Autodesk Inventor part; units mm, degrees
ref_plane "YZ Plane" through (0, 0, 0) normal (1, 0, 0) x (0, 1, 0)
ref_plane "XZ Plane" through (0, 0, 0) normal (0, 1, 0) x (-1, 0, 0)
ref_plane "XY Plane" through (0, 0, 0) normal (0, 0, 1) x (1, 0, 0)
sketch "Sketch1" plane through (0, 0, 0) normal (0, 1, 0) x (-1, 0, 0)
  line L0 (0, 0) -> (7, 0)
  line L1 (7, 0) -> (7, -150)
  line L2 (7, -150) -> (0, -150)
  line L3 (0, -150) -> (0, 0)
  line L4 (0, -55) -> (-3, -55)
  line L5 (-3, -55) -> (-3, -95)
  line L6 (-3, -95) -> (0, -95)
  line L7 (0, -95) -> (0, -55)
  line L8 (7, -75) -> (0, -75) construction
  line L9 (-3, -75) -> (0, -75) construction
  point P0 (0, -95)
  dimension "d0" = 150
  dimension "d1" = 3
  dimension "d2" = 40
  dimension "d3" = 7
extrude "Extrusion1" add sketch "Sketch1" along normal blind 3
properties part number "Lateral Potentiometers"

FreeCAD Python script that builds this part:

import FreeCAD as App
import Part
import Sketcher
from FreeCAD import Vector
Q = App.Units.Quantity


def add_polygon(sketch, points):
    """Adds a closed chain of lines whose ends are joined by coincident constraints."""
    first, n = sketch.GeometryCount, len(points)
    for a, b in zip(points, points[1:] + points[:1]):
        sketch.addGeometry(Part.LineSegment(App.Vector(*a, 0), App.Vector(*b, 0)), False)
    for i in range(n):
        sketch.addConstraint(Sketcher.Constraint("Coincident", first + i, 2, first + (i + 1) % n, 1))

doc = App.newDocument("Part")
params = doc.addObject("Spreadsheet::Sheet", "Params")
for row, (alias, value) in enumerate([
    ("sketch1_width", "7 mm"),
    ("sketch1_width2", "3 mm"),
    ("sketch1_height", "40 mm"),
    ("sketch1_height2", "150 mm"),
    ("pad1_length", "3 mm"),
], start=1):
    params.set(f"A{row}", alias)
    params.set(f"B{row}", "=" + value)
    params.setAlias(f"B{row}", alias)

body = doc.addObject("PartDesign::Body", "Body")

# Sketch on XZ plane
sketch1 = body.newObject("Sketcher::SketchObject", "Sketch")
sketch1.AttachmentSupport = (doc.getObject("XZ_Plane"), [""])
sketch1.MapMode = "FlatFace"
add_polygon(sketch1, [(-7, 0), (0, 0), (0, -55), (3, -55), (3, -95), (0, -95), (0, -150), (-7, -150)])  # lines 0-7
sketch1.addConstraint(Sketcher.Constraint("Horizontal", 0))
sketch1.addConstraint(Sketcher.Constraint("Vertical", 1))
sketch1.addConstraint(Sketcher.Constraint("Horizontal", 2))
sketch1.addConstraint(Sketcher.Constraint("Vertical", 3))
sketch1.addConstraint(Sketcher.Constraint("Horizontal", 4))
sketch1.addConstraint(Sketcher.Constraint("Vertical", 5))
sketch1.addConstraint(Sketcher.Constraint("Horizontal", 6))
sketch1.addConstraint(Sketcher.Constraint("Vertical", 7))
sketch1.addConstraint(Sketcher.Constraint("Coincident", 0, 2, -1, 1))
sketch1.addConstraint(Sketcher.Constraint("PointOnObject", 4, 2, -2))
sketch1.addConstraint(Sketcher.Constraint("Equal", 1, 5))
sketch1.addConstraint(Sketcher.Constraint("DistanceX", 0, 1, 0, 2, Q("7 mm")))
sketch1.addConstraint(Sketcher.Constraint("DistanceX", 2, 1, 2, 2, Q("3 mm")))
sketch1.addConstraint(Sketcher.Constraint("DistanceY", 3, 2, 3, 1, Q("40 mm")))
sketch1.addConstraint(Sketcher.Constraint("DistanceY", 7, 1, 7, 2, Q("150 mm")))
sketch1.setExpression("Constraints[19]", "Params.sketch1_width")
sketch1.setExpression("Constraints[20]", "Params.sketch1_width2")
sketch1.setExpression("Constraints[21]", "Params.sketch1_height")
sketch1.setExpression("Constraints[22]", "Params.sketch1_height2")
pad1 = body.newObject("PartDesign::Pad", "Pad")
pad1.Profile = sketch1
pad1.setExpression("Length", "Params.pad1_length")
pad1.Reversed = True

doc.recompute()
